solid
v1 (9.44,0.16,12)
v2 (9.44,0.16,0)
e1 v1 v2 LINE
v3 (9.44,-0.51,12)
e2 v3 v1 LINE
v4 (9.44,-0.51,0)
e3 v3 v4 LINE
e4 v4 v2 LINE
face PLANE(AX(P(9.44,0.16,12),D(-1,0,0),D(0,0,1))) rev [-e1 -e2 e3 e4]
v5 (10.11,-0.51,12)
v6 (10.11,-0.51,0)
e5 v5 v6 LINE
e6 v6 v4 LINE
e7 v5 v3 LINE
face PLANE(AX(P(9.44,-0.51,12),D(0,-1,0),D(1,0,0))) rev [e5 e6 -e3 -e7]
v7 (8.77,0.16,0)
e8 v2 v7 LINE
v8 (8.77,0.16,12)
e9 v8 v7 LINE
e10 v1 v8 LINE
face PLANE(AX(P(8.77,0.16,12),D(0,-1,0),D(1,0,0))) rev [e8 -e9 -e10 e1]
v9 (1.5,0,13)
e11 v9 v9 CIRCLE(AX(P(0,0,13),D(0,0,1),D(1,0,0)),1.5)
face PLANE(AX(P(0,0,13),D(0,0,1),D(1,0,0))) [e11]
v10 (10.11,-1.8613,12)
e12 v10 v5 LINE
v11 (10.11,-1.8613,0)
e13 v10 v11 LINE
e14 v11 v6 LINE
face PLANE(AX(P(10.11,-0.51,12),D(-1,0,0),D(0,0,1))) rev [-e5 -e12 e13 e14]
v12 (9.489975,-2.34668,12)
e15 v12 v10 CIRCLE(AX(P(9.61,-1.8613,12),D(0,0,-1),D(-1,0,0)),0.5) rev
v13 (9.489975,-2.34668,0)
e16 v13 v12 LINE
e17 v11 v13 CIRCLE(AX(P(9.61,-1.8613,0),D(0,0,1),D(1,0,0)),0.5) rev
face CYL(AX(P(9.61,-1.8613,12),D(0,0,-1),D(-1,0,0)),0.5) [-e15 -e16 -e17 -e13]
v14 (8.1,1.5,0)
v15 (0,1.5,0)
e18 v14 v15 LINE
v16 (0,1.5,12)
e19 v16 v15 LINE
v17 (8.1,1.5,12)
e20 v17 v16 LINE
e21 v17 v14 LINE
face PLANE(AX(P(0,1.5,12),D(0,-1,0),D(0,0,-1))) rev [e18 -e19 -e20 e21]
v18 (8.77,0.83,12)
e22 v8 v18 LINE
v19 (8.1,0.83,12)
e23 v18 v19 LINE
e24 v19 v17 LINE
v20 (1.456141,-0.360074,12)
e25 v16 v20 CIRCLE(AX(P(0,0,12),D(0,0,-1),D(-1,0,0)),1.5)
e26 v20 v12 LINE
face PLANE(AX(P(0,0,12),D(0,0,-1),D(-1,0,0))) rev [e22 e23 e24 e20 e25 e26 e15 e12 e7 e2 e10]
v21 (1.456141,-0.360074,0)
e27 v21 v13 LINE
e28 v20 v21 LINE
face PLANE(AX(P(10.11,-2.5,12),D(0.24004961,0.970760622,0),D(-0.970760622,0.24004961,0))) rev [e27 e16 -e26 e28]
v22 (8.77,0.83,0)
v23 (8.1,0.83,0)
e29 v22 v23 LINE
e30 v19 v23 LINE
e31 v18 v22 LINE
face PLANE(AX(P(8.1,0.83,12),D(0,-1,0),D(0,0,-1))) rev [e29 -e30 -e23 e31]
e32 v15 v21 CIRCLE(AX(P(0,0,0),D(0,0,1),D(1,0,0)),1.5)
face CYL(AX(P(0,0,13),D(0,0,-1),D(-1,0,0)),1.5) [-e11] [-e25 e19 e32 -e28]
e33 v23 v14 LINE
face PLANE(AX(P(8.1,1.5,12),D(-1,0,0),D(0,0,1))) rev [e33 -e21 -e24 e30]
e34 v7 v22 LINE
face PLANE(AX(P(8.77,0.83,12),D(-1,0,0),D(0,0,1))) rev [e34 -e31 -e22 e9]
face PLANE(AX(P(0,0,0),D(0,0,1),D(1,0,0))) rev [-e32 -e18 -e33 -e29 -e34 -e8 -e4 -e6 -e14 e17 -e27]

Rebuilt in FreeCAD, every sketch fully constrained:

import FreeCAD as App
import Part
import Sketcher
Q = App.Units.Quantity


def edges_at(feature, points):
    """Names of the edges that pass closest to the given points."""
    edges = feature.Shape.Edges
    near = lambda p: min(range(len(edges)), key=lambda i: edges[i].distToShape(Part.Vertex(*p))[0])
    return sorted({f"Edge{near(p) + 1}" for p in points})


def add_polygon(sketch, points):
    """Adds a closed chain of lines whose ends are joined by coincident constraints."""
    first, n = sketch.GeometryCount, len(points)
    for a, b in zip(points, points[1:] + points[:1]):
        sketch.addGeometry(Part.LineSegment(App.Vector(*a, 0), App.Vector(*b, 0)), False)
    for i in range(n):
        sketch.addConstraint(Sketcher.Constraint("Coincident", first + i, 2, first + (i + 1) % n, 1))

doc = App.newDocument("Part")
body = doc.addObject("PartDesign::Body", "Body")

sketch1 = body.newObject("Sketcher::SketchObject", "Sketch")
sketch1.AttachmentSupport = (doc.getObject("XY_Plane"), [""])
sketch1.MapMode = "FlatFace"
sketch1.addGeometry(Part.Circle(App.Vector(0, 0, 0), App.Vector(0, 0, 1), 1.5), False)
sketch1.addConstraint([
    Sketcher.Constraint("Coincident", 0, 3, -1, 1),
    Sketcher.Constraint("Diameter", 0, Q("3 mm")),
])
pad1 = body.newObject("PartDesign::Pad", "Pad")
pad1.Profile = sketch1
pad1.Length = 13

sketch2 = body.newObject("Sketcher::SketchObject", "Sketch001")
sketch2.AttachmentSupport = (doc.getObject("XY_Plane"), [""])
sketch2.MapMode = "FlatFace"
add_polygon(sketch2, [(8.1, 1.5), (0, 1.5), (0, 0), (10.11, -2.5), (10.11, -0.51), (9.44, -0.51), (9.44, 0.16), (8.77, 0.16), (8.77, 0.83), (8.1, 0.83)])
sketch2.addConstraint([
    Sketcher.Constraint("Horizontal", 0),
    Sketcher.Constraint("Vertical", 1),
    Sketcher.Constraint("Vertical", 3),
    Sketcher.Constraint("Horizontal", 4),
    Sketcher.Constraint("Vertical", 5),
    Sketcher.Constraint("Horizontal", 6),
    Sketcher.Constraint("Vertical", 7),
    Sketcher.Constraint("Horizontal", 8),
    Sketcher.Constraint("Vertical", 9),
    Sketcher.Constraint("Coincident", 1, 2, -1, 1),
    Sketcher.Constraint("Equal", 4, 6),
    Sketcher.Constraint("Equal", 6, 8),
    Sketcher.Constraint("Equal", 8, 5),
    Sketcher.Constraint("Equal", 5, 7),
    Sketcher.Constraint("Equal", 7, 9),
    Sketcher.Constraint("DistanceX", 0, 2, 0, 1, Q("8.1 mm")),
    Sketcher.Constraint("DistanceY", 1, 2, 1, 1, Q("1.5 mm")),
    Sketcher.Constraint("DistanceY", 2, 2, 0, 2, Q("4 mm")),
    Sketcher.Constraint("DistanceX", 4, 2, 4, 1, Q("0.67 mm")),
])
pad2 = body.newObject("PartDesign::Pad", "Pad001")
pad2.Profile = sketch2
pad2.Length = 12
doc.recompute()

fillet = body.newObject("PartDesign::Fillet", "Fillet")
fillet.Base = (pad2, edges_at(pad2, [(10.11, -2.5, 6)]))
fillet.Radius = 0.5

doc.recompute()
